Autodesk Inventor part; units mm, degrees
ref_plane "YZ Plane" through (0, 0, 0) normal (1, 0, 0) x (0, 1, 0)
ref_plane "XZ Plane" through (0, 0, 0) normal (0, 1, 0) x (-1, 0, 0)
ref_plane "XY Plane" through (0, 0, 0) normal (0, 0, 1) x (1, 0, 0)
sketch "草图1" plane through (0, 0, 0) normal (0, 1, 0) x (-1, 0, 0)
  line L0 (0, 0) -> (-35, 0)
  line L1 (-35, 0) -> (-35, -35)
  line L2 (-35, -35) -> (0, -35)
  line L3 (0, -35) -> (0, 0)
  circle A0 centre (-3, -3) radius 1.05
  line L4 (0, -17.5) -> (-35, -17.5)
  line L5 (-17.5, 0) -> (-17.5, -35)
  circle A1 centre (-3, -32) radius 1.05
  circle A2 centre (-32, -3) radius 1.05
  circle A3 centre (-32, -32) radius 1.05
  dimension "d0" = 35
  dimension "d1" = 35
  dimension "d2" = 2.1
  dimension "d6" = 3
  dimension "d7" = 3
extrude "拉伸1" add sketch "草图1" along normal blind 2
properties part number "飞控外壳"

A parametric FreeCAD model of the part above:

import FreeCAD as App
import Part
import Sketcher

V = App.Vector
Q = App.Units.Quantity

doc = App.newDocument("Part")
body = doc.addObject("PartDesign::Body", "Body")

# Sketch on XZ plane
sketch1 = doc.addObject("Sketcher::SketchObject", "Sketch")
body.addObject(sketch1)
sketch1.AttachmentSupport = (doc.XZ_Plane, [""])
sketch1.MapMode = "FlatFace"
sketch1.addGeometry([
    Part.LineSegment(V(0, 0, 0), V(35, 0, 0)),  # 0
    Part.LineSegment(V(35, 0, 0), V(35, -35, 0)),  # 1
    Part.LineSegment(V(35, -35, 0), V(0, -35, 0)),  # 2
    Part.LineSegment(V(0, -35, 0), V(0, 0, 0)),  # 3
    Part.Circle(V(3, -3, 0), V(0, 0, 1), 1.05),  # 4
    Part.Circle(V(3, -32, 0), V(0, 0, 1), 1.05),  # 5
    Part.Circle(V(32, -3, 0), V(0, 0, 1), 1.05),  # 6
    Part.Circle(V(32, -32, 0), V(0, 0, 1), 1.05),  # 7
], False)
sketch1.addConstraint([
    Sketcher.Constraint("Coincident", 0, 2, 1, 1),
    Sketcher.Constraint("Coincident", 1, 2, 2, 1),
    Sketcher.Constraint("Coincident", 2, 2, 3, 1),
    Sketcher.Constraint("Coincident", 3, 2, 0, 1),
    Sketcher.Constraint("Horizontal", 0),
    Sketcher.Constraint("Vertical", 1),
    Sketcher.Constraint("Horizontal", 2),
    Sketcher.Constraint("Vertical", 3),
    Sketcher.Constraint("Coincident", 3, 2, -1, 1),
    Sketcher.Constraint("Equal", 4, 5),
    Sketcher.Constraint("Equal", 5, 6),
    Sketcher.Constraint("Equal", 6, 7),
    Sketcher.Constraint("Horizontal", 4, 3, 6, 3),
    Sketcher.Constraint("Horizontal", 5, 3, 7, 3),
    Sketcher.Constraint("Vertical", 4, 3, 5, 3),
    Sketcher.Constraint("Vertical", 6, 3, 7, 3),
    Sketcher.Constraint("Equal", 2, 1),
    Sketcher.Constraint("Diameter", 4, Q("2.1 mm")),
    Sketcher.Constraint("DistanceX", 0, 1, 0, 2, Q("35 mm")),
    Sketcher.Constraint("DistanceX", -1, 1, 4, 3, Q("3 mm")),
    Sketcher.Constraint("DistanceY", 4, 3, -1, 1, Q("3 mm")),
    Sketcher.Constraint("DistanceX", 6, 3, 0, 2, Q("3 mm")),
    Sketcher.Constraint("DistanceY", 1, 2, 7, 3, Q("3 mm")),
])
pad1 = doc.addObject("PartDesign::Pad", "Pad")
body.addObject(pad1)
pad1.Profile = sketch1
pad1.Length = 2
pad1.Reversed = True

doc.recompute()
